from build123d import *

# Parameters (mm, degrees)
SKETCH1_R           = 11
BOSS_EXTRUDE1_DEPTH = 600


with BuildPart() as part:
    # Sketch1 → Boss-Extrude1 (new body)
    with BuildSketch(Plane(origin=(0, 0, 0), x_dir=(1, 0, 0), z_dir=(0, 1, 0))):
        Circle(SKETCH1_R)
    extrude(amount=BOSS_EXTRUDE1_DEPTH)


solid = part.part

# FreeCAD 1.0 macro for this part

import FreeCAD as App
import Part
import Sketcher

doc = App.newDocument("Part")
params = doc.addObject("Spreadsheet::Sheet", "Params")
for row, (alias, value) in enumerate([
    ("sketch1_diameter", "22 mm"),
    ("pad1_length", "600 mm"),
], start=1):
    params.set(f"A{row}", alias)
    params.set(f"B{row}", "=" + value)
    params.setAlias(f"B{row}", alias)

body = doc.addObject("PartDesign::Body", "Body")

sketch1 = body.newObject("Sketcher::SketchObject", "Sketch")
sketch1.AttachmentSupport = (doc.getObject("XZ_Plane"), [""])
sketch1.MapMode = "FlatFace"
sketch1.addGeometry(Part.Circle(App.Vector(0, 0, 0), App.Vector(0, 0, 1), 11), False)
sketch1.addConstraint([
    Sketcher.Constraint("Coincident", 0, 3, -1, 1),
    Sketcher.Constraint("Diameter", 0, 22.0),
])
sketch1.setExpression("Constraints[1]", "Params.sketch1_diameter")
pad1 = body.newObject("PartDesign::Pad", "Pad")
pad1.Profile = sketch1
pad1.setExpression("Length", "Params.pad1_length")
pad1.Reversed = True

doc.recompute()
